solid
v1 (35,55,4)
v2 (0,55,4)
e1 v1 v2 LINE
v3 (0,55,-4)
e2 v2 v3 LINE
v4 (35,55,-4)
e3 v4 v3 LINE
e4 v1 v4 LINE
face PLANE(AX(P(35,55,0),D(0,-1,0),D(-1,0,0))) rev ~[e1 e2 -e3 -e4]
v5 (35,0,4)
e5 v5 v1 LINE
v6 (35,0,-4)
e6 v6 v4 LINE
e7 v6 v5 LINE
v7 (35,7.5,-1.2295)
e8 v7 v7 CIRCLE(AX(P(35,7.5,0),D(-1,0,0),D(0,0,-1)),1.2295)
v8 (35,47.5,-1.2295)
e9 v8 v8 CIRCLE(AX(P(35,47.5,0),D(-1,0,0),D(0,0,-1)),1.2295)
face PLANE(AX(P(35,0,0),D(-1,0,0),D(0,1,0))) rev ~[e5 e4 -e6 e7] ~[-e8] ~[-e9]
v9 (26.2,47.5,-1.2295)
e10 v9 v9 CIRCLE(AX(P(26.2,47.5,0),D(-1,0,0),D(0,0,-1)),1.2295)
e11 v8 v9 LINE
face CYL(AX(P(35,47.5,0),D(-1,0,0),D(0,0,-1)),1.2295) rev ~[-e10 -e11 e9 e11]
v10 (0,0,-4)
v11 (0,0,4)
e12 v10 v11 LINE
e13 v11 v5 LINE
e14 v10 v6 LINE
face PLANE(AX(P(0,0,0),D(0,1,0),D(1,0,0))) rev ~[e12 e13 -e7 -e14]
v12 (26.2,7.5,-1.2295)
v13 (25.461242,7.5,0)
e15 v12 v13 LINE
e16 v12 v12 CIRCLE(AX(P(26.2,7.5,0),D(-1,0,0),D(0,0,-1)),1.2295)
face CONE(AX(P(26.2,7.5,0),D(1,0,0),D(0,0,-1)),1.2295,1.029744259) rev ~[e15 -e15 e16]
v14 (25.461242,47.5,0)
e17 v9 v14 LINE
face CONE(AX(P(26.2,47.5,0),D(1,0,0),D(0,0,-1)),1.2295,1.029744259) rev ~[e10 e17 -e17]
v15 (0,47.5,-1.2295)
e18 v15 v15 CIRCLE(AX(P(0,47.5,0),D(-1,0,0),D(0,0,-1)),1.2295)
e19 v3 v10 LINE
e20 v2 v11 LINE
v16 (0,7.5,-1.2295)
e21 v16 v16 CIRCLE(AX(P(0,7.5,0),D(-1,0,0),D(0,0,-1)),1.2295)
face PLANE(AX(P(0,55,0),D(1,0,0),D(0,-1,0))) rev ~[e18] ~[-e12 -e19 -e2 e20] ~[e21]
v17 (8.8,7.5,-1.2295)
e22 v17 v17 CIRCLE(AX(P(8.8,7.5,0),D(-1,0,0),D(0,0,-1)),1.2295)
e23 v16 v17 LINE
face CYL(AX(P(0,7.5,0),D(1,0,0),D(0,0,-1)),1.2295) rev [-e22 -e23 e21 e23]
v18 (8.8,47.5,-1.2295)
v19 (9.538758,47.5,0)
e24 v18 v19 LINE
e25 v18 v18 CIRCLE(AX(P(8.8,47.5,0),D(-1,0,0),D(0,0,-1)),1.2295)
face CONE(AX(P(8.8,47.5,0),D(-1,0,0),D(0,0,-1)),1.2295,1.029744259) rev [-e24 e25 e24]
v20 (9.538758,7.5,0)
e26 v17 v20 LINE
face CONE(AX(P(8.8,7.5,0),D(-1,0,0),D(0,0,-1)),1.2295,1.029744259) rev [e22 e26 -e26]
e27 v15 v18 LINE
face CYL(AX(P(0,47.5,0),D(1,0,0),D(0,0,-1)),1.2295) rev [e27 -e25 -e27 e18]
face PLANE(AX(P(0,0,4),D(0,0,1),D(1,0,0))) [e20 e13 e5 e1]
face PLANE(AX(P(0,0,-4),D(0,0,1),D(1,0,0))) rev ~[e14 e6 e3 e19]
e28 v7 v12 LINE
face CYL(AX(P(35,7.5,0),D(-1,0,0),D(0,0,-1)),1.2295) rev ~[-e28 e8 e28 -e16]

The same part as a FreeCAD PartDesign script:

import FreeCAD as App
import Part
import Sketcher
from FreeCAD import Vector


def add_polygon(sketch, points):
    """Adds a closed chain of lines whose ends are joined by coincident constraints."""
    first, n = sketch.GeometryCount, len(points)
    for a, b in zip(points, points[1:] + points[:1]):
        sketch.addGeometry(Part.LineSegment(App.Vector(*a, 0), App.Vector(*b, 0)), False)
    for i in range(n):
        sketch.addConstraint(Sketcher.Constraint("Coincident", first + i, 2, first + (i + 1) % n, 1))

doc = App.newDocument("Part")
body = doc.addObject("PartDesign::Body", "Body")

sketch1 = body.newObject("Sketcher::SketchObject", "Sketch")
sketch1.AttachmentSupport = (doc.getObject("XY_Plane"), [""])
sketch1.MapMode = "FlatFace"
add_polygon(sketch1, [(0, 55), (0, 0), (35, 0), (35, 55)])
sketch1.addConstraint(Sketcher.Constraint("Vertical", 0))
sketch1.addConstraint(Sketcher.Constraint("Horizontal", 1))
sketch1.addConstraint(Sketcher.Constraint("Vertical", 2))
sketch1.addConstraint(Sketcher.Constraint("Horizontal", 3))
sketch1.addConstraint(Sketcher.Constraint("Coincident", 0, 2, -1, 1))
sketch1.addConstraint(Sketcher.Constraint("DistanceX", 1, 1, 1, 2, 35.0))
sketch1.addConstraint(Sketcher.Constraint("DistanceY", 0, 2, 0, 1, 55.0))
pad1 = body.newObject("PartDesign::Pad", "Pad")
pad1.Profile = sketch1
pad1.Length = 8
pad1.Midplane = True

sketch2 = body.newObject("Sketcher::SketchObject", "Sketch001")
sketch2.AttachmentSupport = (doc.getObject("YZ_Plane"), [""])
sketch2.MapMode = "FlatFace"
sketch2.AttachmentOffset = App.Placement(Vector(0, 0, 35), App.Rotation())
sketch2.addGeometry(Part.Circle(Vector(7.5, 0, 0), Vector(0, 0, 1), 1.2), False)
sketch2.addGeometry(Part.Circle(Vector(47.5, 0, 0), Vector(0, 0, 1), 1.2), False)
sketch2.addConstraint(Sketcher.Constraint("Equal", 0, 1))
sketch2.addConstraint(Sketcher.Constraint("PointOnObject", 0, 3, -1))
sketch2.addConstraint(Sketcher.Constraint("PointOnObject", 1, 3, -1))
sketch2.addConstraint(Sketcher.Constraint("Diameter", 0, 2.459))
sketch2.addConstraint(Sketcher.Constraint("DistanceX", 0, 3, 1, 3, 40.0))
sketch2.addConstraint(Sketcher.Constraint("DistanceX", -1, 1, 0, 3, 7.5))
doc.recompute()
hole = body.newObject("PartDesign::Hole", "Hole")
hole.Profile = sketch2
hole.ThreadType = "None"
hole.Diameter = 2.459
hole.DepthType = "Dimension"
hole.Depth = 8.8
hole.DrillPoint = "Angled"
hole.DrillPointAngle = 118
doc.recompute()

datumplane = body.newObject("PartDesign::Plane", "DatumPlane")
datumplane.AttachmentSupport = (doc.getObject("YZ_Plane"), [""])
datumplane.MapMode = "FlatFace"
datumplane.AttachmentOffset = App.Placement(Vector(0, 0, 17.5), App.Rotation())
mirrored = body.newObject("PartDesign::Mirrored", "Mirrored")
mirrored.Originals = [hole]
mirrored.MirrorPlane = (datumplane, [""])
body.Tip = mirrored

doc.recompute()
